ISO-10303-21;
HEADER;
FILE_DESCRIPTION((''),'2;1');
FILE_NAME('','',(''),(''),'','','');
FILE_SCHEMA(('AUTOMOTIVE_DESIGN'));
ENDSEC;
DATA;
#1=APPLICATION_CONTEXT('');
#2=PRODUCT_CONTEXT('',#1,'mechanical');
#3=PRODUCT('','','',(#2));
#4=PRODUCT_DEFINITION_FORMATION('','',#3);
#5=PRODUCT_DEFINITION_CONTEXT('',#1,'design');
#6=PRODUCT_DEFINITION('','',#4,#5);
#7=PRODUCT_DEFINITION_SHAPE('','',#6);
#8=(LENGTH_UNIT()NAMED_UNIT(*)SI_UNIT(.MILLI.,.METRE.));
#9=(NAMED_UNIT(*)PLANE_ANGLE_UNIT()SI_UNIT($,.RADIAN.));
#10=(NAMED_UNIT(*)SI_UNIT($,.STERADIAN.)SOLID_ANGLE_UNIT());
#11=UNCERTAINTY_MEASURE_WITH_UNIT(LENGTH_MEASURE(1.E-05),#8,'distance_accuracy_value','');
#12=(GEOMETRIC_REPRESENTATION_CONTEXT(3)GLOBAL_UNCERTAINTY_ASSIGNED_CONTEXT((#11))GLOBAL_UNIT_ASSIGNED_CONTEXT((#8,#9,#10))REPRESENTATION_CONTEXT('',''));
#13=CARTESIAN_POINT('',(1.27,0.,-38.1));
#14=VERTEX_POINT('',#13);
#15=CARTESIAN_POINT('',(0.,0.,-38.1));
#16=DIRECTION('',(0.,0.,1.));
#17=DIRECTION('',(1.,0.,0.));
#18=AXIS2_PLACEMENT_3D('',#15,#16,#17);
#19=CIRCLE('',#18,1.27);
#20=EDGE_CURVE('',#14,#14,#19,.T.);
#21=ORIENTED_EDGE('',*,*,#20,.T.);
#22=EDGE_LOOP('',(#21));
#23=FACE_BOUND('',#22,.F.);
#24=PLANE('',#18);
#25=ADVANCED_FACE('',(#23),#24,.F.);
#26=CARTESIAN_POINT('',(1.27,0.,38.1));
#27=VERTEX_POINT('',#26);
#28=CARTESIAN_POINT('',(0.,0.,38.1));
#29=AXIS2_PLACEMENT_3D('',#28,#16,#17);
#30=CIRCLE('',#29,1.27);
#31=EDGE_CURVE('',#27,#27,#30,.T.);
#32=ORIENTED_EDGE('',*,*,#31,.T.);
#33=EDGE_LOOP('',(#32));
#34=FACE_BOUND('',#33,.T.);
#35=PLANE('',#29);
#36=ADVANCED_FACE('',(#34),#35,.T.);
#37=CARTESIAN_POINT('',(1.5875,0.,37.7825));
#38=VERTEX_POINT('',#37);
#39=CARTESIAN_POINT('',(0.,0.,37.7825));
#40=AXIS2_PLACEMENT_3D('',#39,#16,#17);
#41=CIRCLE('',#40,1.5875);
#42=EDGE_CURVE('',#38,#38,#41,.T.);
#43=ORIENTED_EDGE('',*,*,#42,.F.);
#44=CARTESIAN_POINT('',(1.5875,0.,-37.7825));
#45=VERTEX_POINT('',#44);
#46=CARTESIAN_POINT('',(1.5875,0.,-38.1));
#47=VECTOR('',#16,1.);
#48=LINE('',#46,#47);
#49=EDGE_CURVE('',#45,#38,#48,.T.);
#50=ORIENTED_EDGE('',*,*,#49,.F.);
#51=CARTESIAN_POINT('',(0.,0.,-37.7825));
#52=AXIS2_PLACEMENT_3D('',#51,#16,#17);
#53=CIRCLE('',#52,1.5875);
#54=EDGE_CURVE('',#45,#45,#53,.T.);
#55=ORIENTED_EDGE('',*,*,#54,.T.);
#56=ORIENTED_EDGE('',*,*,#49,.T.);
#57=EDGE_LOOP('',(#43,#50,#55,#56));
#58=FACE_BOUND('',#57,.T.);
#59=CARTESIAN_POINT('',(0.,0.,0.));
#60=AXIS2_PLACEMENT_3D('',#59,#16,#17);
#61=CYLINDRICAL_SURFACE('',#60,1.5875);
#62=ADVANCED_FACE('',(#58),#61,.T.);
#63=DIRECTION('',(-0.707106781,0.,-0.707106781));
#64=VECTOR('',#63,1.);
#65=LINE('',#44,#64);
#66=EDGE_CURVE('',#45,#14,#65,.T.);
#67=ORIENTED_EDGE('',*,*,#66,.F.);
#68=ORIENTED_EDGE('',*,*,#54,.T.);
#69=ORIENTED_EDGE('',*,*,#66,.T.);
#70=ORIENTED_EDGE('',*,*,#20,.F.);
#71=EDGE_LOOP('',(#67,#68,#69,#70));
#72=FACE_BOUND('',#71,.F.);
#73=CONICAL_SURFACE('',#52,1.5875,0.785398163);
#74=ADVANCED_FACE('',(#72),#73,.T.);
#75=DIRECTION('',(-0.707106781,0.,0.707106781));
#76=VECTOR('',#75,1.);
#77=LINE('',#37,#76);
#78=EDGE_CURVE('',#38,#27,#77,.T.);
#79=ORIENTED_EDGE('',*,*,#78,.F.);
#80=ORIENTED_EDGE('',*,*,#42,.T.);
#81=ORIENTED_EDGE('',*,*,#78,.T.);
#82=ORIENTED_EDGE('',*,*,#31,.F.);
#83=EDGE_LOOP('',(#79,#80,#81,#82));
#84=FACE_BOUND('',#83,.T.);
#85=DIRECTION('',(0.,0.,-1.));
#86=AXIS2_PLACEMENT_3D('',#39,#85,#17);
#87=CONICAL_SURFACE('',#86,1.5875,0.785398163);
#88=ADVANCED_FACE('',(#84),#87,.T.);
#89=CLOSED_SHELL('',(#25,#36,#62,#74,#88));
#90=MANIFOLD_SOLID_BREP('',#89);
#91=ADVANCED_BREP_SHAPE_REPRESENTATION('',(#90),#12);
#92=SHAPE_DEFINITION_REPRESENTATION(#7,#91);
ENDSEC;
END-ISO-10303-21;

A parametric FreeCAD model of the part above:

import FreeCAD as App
import Part
import Sketcher

V = App.Vector
Q = App.Units.Quantity


def edges_at(feature, points):
    """Names of the edges that pass closest to the given points."""
    edges = feature.Shape.Edges
    near = lambda p: min(range(len(edges)), key=lambda i: edges[i].distToShape(Part.Vertex(*p))[0])
    return sorted({f"Edge{near(p) + 1}" for p in points})

doc = App.newDocument("Part")
params = doc.addObject("Spreadsheet::Sheet", "Params")
for row, (alias, value) in enumerate([
    ("sketch1_diameter", "0.125 in"),
    ("pad1_length", "3 in"),
    ("chamfer_size", "0.0125 in"),
], start=1):
    params.set(f"A{row}", alias)
    params.set(f"B{row}", "=" + value)
    params.setAlias(f"B{row}", alias)

body = doc.addObject("PartDesign::Body", "Body")

sketch1 = doc.addObject("Sketcher::SketchObject", "Sketch")
body.addObject(sketch1)
sketch1.AttachmentSupport = (doc.XY_Plane, [""])
sketch1.MapMode = "FlatFace"
sketch1.addGeometry(Part.Circle(V(0, 0, 0), V(0, 0, 1), 1.5875), False)
sketch1.addConstraint(Sketcher.Constraint("Coincident", 0, 3, -1, 1))
sketch1.addConstraint(Sketcher.Constraint("Diameter", 0, Q("0.125 in")))
sketch1.setExpression("Constraints[1]", "Params.sketch1_diameter")
pad1 = doc.addObject("PartDesign::Pad", "Pad")
body.addObject(pad1)
pad1.Profile = sketch1
pad1.setExpression("Length", "Params.pad1_length")
pad1.Midplane = True
doc.recompute()

chamfer = doc.addObject("PartDesign::Chamfer", "Chamfer")
body.addObject(chamfer)
chamfer.Base = (pad1, edges_at(pad1, [(-1.587, 0, -38.1), (-1.587, 0, 38.1)]))
chamfer.setExpression("Size", "Params.chamfer_size")

doc.recompute()
